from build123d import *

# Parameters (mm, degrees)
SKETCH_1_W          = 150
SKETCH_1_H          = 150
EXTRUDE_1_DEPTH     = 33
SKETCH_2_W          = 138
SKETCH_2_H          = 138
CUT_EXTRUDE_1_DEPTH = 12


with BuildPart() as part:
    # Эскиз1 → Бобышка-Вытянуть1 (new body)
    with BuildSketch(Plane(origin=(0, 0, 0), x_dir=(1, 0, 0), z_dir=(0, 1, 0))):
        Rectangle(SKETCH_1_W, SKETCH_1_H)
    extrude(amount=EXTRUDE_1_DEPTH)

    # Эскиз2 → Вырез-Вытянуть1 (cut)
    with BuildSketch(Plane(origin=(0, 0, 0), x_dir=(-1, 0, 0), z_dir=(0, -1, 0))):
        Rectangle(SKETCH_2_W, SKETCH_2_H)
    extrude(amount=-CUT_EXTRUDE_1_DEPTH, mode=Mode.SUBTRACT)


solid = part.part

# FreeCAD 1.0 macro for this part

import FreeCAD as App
import Part
import Sketcher

V = App.Vector

doc = App.newDocument("Part")
body = doc.addObject("PartDesign::Body", "Body")

# Sketch on XZ plane
sketch1 = doc.addObject("Sketcher::SketchObject", "Sketch")
body.addObject(sketch1)
sketch1.AttachmentSupport = (doc.XZ_Plane, [""])
sketch1.MapMode = "FlatFace"
sketch1.addGeometry(Part.LineSegment(V(-75, -75, 0), V(-75, 75, 0)), False)
sketch1.addGeometry(Part.LineSegment(V(-75, 75, 0), V(75, 75, 0)), False)
sketch1.addGeometry(Part.LineSegment(V(75, 75, 0), V(75, -75, 0)), False)
sketch1.addGeometry(Part.LineSegment(V(75, -75, 0), V(-75, -75, 0)), False)
sketch1.addConstraint(Sketcher.Constraint("Coincident", 0, 2, 1, 1))
sketch1.addConstraint(Sketcher.Constraint("Coincident", 1, 2, 2, 1))
sketch1.addConstraint(Sketcher.Constraint("Coincident", 2, 2, 3, 1))
sketch1.addConstraint(Sketcher.Constraint("Coincident", 3, 2, 0, 1))
sketch1.addConstraint(Sketcher.Constraint("Vertical", 0))
sketch1.addConstraint(Sketcher.Constraint("Horizontal", 1))
sketch1.addConstraint(Sketcher.Constraint("Vertical", 2))
sketch1.addConstraint(Sketcher.Constraint("Horizontal", 3))
sketch1.addConstraint(Sketcher.Constraint("Symmetric", 0, 2, 2, 2, -1, 1))
sketch1.addConstraint(Sketcher.Constraint("Equal", 3, 0))
sketch1.addConstraint(Sketcher.Constraint("DistanceX", 1, 1, 1, 2, 150.0))
pad1 = doc.addObject("PartDesign::Pad", "Pad")
body.addObject(pad1)
pad1.Profile = sketch1
pad1.Length = 33
pad1.Reversed = True

# Sketch on XZ plane
sketch2 = doc.addObject("Sketcher::SketchObject", "Sketch001")
body.addObject(sketch2)
sketch2.AttachmentSupport = (doc.XZ_Plane, [""])
sketch2.MapMode = "FlatFace"
sketch2.addGeometry(Part.LineSegment(V(69, -69, 0), V(69, 69, 0)), False)
sketch2.addGeometry(Part.LineSegment(V(69, 69, 0), V(-69, 69, 0)), False)
sketch2.addGeometry(Part.LineSegment(V(-69, 69, 0), V(-69, -69, 0)), False)
sketch2.addGeometry(Part.LineSegment(V(-69, -69, 0), V(69, -69, 0)), False)
sketch2.addConstraint(Sketcher.Constraint("Coincident", 0, 2, 1, 1))
sketch2.addConstraint(Sketcher.Constraint("Coincident", 1, 2, 2, 1))
sketch2.addConstraint(Sketcher.Constraint("Coincident", 2, 2, 3, 1))
sketch2.addConstraint(Sketcher.Constraint("Coincident", 3, 2, 0, 1))
sketch2.addConstraint(Sketcher.Constraint("Vertical", 0))
sketch2.addConstraint(Sketcher.Constraint("Horizontal", 1))
sketch2.addConstraint(Sketcher.Constraint("Vertical", 2))
sketch2.addConstraint(Sketcher.Constraint("Horizontal", 3))
sketch2.addConstraint(Sketcher.Constraint("Symmetric", 0, 2, 2, 2, -1, 1))
sketch2.addConstraint(Sketcher.Constraint("Equal", 3, 0))
sketch2.addConstraint(Sketcher.Constraint("DistanceX", 1, 2, 1, 1, 138.0))
pocket1 = doc.addObject("PartDesign::Pocket", "Pocket")
body.addObject(pocket1)
pocket1.Profile = sketch2
pocket1.Length = 12

doc.recompute()
